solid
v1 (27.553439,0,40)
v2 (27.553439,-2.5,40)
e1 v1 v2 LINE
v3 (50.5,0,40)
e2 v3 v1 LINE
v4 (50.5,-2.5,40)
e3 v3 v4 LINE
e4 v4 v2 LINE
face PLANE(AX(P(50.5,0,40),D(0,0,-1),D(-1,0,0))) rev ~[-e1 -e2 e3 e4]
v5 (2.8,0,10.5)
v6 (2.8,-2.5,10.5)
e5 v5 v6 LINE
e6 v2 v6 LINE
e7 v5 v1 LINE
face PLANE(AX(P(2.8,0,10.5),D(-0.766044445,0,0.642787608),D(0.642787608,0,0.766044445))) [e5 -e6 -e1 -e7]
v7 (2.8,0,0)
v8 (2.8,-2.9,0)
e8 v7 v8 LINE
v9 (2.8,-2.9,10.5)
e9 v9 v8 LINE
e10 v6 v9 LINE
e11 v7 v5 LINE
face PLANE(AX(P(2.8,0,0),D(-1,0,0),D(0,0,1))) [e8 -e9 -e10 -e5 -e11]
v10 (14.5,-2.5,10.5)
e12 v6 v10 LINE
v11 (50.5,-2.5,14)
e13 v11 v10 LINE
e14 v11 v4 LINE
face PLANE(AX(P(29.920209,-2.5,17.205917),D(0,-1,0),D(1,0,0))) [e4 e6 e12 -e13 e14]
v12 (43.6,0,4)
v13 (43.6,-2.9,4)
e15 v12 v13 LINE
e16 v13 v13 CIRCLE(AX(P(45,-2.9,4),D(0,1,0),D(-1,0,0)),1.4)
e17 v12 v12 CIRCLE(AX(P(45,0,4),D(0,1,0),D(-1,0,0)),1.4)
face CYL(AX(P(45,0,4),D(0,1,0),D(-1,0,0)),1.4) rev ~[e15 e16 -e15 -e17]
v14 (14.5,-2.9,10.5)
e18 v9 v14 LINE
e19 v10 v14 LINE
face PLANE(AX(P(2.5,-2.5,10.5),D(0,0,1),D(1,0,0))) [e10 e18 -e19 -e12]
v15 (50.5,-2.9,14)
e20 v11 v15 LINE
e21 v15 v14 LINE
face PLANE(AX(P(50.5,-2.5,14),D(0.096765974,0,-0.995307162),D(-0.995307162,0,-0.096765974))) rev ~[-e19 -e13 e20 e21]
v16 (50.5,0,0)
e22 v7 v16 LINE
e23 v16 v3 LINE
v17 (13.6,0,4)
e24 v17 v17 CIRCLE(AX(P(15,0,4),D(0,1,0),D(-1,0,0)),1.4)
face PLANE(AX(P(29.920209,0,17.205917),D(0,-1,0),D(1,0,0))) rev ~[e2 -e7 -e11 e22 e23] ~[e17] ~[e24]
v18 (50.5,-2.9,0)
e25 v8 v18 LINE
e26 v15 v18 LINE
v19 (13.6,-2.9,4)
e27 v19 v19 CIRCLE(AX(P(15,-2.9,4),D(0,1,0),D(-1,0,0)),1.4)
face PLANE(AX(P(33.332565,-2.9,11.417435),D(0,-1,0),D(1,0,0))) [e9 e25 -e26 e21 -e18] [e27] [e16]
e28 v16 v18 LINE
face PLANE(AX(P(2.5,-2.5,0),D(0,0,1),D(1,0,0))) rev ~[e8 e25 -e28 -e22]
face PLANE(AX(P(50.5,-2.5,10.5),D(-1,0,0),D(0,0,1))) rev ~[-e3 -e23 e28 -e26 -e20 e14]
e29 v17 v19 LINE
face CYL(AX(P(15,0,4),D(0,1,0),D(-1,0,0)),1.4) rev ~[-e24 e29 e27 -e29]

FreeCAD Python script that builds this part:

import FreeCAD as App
import Part
import Sketcher
from FreeCAD import Vector
Q = App.Units.Quantity

doc = App.newDocument("Part")
body = doc.addObject("PartDesign::Body", "Body")

sketch1 = body.newObject("Sketcher::SketchObject", "Sketch")
sketch1.AttachmentSupport = (doc.getObject("XZ_Plane"), [""])
sketch1.MapMode = "FlatFace"
sketch1.addGeometry([
    Part.LineSegment(Vector(50, 0, 0), Vector(50, 40, 0)),
    Part.LineSegment(Vector(50, 40, 0), Vector(27, 40, 0)),
    Part.LineSegment(Vector(27, 40, 0), Vector(2, 10, 0)),
    Part.LineSegment(Vector(2, 10, 0), Vector(2, 0, 0)),
    Part.LineSegment(Vector(2, 0, 0), Vector(50, 0, 0)),
], False)
sketch1.addConstraint([
    Sketcher.Constraint("Coincident", 0, 2, 1, 1),
    Sketcher.Constraint("Coincident", 1, 2, 2, 1),
    Sketcher.Constraint("Coincident", 2, 2, 3, 1),
    Sketcher.Constraint("Coincident", 3, 2, 4, 1),
    Sketcher.Constraint("Coincident", 4, 2, 0, 1),
    Sketcher.Constraint("Vertical", 0),
    Sketcher.Constraint("Horizontal", 1),
    Sketcher.Constraint("Vertical", 3),
    Sketcher.Constraint("Horizontal", 4),
    Sketcher.Constraint("PointOnObject", 3, 2, -1),
    Sketcher.Constraint("DistanceX", 4, 1, 4, 2, 48.0),
    Sketcher.Constraint("DistanceY", 0, 1, 0, 2, 40.0),
    Sketcher.Constraint("Angle", 2, Q("-130 deg")),
    Sketcher.Constraint("DistanceY", 3, 2, 3, 1, 10.5),
    Sketcher.Constraint("DistanceX", -1, 1, 0, 2, 50.5),
])
pad1 = body.newObject("PartDesign::Pad", "Pad")
pad1.Profile = sketch1
pad1.Length = 2.5

sketch2 = body.newObject("Sketcher::SketchObject", "Sketch001")
sketch2.AttachmentSupport = (doc.getObject("XZ_Plane"), [""])
sketch2.MapMode = "FlatFace"
sketch2.AttachmentOffset = App.Placement(Vector(0, 0, 2.5), App.Rotation())
sketch2.addGeometry([
    Part.LineSegment(Vector(2, 10, 0), Vector(2, 0, 0)),
    Part.LineSegment(Vector(2, 0, 0), Vector(50, 0, 0)),
    Part.LineSegment(Vector(50, 0, 0), Vector(50, 10, 0)),
    Part.LineSegment(Vector(50, 10, 0), Vector(2, 10, 0)),
], False)
sketch2.addConstraint([
    Sketcher.Constraint("Coincident", 0, 2, 1, 1),
    Sketcher.Constraint("Coincident", 1, 2, 2, 1),
    Sketcher.Constraint("Coincident", 2, 2, 3, 1),
    Sketcher.Constraint("Coincident", 3, 2, 0, 1),
    Sketcher.Constraint("Vertical", 0),
    Sketcher.Constraint("Horizontal", 1),
    Sketcher.Constraint("Vertical", 2),
    Sketcher.Constraint("Horizontal", 3),
    Sketcher.Constraint("PointOnObject", 0, 2, -1),
    Sketcher.Constraint("DistanceX", 1, 1, 1, 2, 48.0),
    Sketcher.Constraint("DistanceY", 0, 2, 0, 1, 10.5),
    Sketcher.Constraint("DistanceX", -1, 1, 0, 2, 2.5),
])
pad2 = body.newObject("PartDesign::Pad", "Pad001")
pad2.Profile = sketch2
pad2.Length = 0.4

sketch3 = body.newObject("Sketcher::SketchObject", "Sketch002")
sketch3.AttachmentSupport = (doc.getObject("XZ_Plane"), [""])
sketch3.MapMode = "FlatFace"
sketch3.addGeometry([
    Part.Circle(Vector(45, 4, 0), Vector(0, 0, 1), 1.4),
    Part.Circle(Vector(15, 4, 0), Vector(0, 0, 1), 1.4),
], False)
sketch3.addConstraint([
    Sketcher.Constraint("Equal", 0, 1),
    Sketcher.Constraint("Horizontal", 0, 3, 1, 3),
    Sketcher.Constraint("Diameter", 0, 2.8),
    Sketcher.Constraint("DistanceX", -1, 1, 0, 3, 45.0),
    Sketcher.Constraint("DistanceY", -1, 1, 0, 3, 4.0),
    Sketcher.Constraint("DistanceX", -1, 1, 1, 3, 15.0),
])
pocket1 = body.newObject("PartDesign::Pocket", "Pocket")
pocket1.Profile = sketch3
pocket1.Length = 5
pocket1.Reversed = True

sketch4 = body.newObject("Sketcher::SketchObject", "Sketch003")
sketch4.AttachmentSupport = (doc.getObject("XZ_Plane"), [""])
sketch4.MapMode = "FlatFace"
sketch4.addGeometry([
    Part.LineSegment(Vector(27.25, 40, 0), Vector(2.5, 10.5, 0)),
    Part.LineSegment(Vector(2.5, 10.5, 0), Vector(2.5, 0, 0)),
    Part.LineSegment(Vector(2.5, 0, 0), Vector(2.8, 0, 0)),
    Part.LineSegment(Vector(2.8, 0, 0), Vector(2.8, 10.5, 0)),
    Part.LineSegment(Vector(2.8, 10.5, 0), Vector(27.55, 40, 0)),
    Part.LineSegment(Vector(27.55, 40, 0), Vector(27.25, 40, 0)),
], False)
sketch4.addConstraint([
    Sketcher.Constraint("Coincident", 0, 2, 1, 1),
    Sketcher.Constraint("Coincident", 1, 2, 2, 1),
    Sketcher.Constraint("Coincident", 2, 2, 3, 1),
    Sketcher.Constraint("Coincident", 3, 2, 4, 1),
    Sketcher.Constraint("Coincident", 4, 2, 5, 1),
    Sketcher.Constraint("Coincident", 5, 2, 0, 1),
    Sketcher.Constraint("Vertical", 1),
    Sketcher.Constraint("Horizontal", 2),
    Sketcher.Constraint("Vertical", 3),
    Sketcher.Constraint("Horizontal", 5),
    Sketcher.Constraint("PointOnObject", 1, 2, -1),
    Sketcher.Constraint("Parallel", 0, 4),
    Sketcher.Constraint("Horizontal", 0, 2, 3, 2),
    Sketcher.Constraint("Angle", 0, Q("-130 deg")),
    Sketcher.Constraint("DistanceX", 2, 1, 2, 2, 0.3),
    Sketcher.Constraint("DistanceY", 1, 2, 1, 1, 10.5),
    Sketcher.Constraint("DistanceY", -1, 1, 4, 2, 40.0),
    Sketcher.Constraint("DistanceX", -1, 1, 0, 2, 2.5),
])
pocket2 = body.newObject("PartDesign::Pocket", "Pocket001")
pocket2.Profile = sketch4
pocket2.Length = 5
pocket2.Reversed = True

sketch5 = body.newObject("Sketcher::SketchObject", "Sketch004")
sketch5.AttachmentSupport = (doc.getObject("XZ_Plane"), [""])
sketch5.MapMode = "FlatFace"
sketch5.AttachmentOffset = App.Placement(Vector(0, 0, 2.5), App.Rotation())
sketch5.addGeometry([
    Part.LineSegment(Vector(14.5, 10.5, 0), Vector(50.5, 10.5, 0)),
    Part.LineSegment(Vector(50.5, 10.5, 0), Vector(50.5, 14, 0)),
    Part.LineSegment(Vector(50.5, 14, 0), Vector(14.5, 10.5, 0)),
], False)
sketch5.addConstraint([
    Sketcher.Constraint("Coincident", 0, 2, 1, 1),
    Sketcher.Constraint("Coincident", 1, 2, 2, 1),
    Sketcher.Constraint("Coincident", 2, 2, 0, 1),
    Sketcher.Constraint("Horizontal", 0),
    Sketcher.Constraint("Vertical", 1),
    Sketcher.Constraint("DistanceX", 0, 1, 0, 2, 36.0),
    Sketcher.Constraint("DistanceY", 1, 1, 1, 2, 3.5),
    Sketcher.Constraint("DistanceY", -1, 1, 1, 2, 14.0),
    Sketcher.Constraint("DistanceX", -1, 1, 0, 2, 50.5),
])
pad3 = body.newObject("PartDesign::Pad", "Pad002")
pad3.Profile = sketch5
pad3.Length = 0.4

doc.recompute()
